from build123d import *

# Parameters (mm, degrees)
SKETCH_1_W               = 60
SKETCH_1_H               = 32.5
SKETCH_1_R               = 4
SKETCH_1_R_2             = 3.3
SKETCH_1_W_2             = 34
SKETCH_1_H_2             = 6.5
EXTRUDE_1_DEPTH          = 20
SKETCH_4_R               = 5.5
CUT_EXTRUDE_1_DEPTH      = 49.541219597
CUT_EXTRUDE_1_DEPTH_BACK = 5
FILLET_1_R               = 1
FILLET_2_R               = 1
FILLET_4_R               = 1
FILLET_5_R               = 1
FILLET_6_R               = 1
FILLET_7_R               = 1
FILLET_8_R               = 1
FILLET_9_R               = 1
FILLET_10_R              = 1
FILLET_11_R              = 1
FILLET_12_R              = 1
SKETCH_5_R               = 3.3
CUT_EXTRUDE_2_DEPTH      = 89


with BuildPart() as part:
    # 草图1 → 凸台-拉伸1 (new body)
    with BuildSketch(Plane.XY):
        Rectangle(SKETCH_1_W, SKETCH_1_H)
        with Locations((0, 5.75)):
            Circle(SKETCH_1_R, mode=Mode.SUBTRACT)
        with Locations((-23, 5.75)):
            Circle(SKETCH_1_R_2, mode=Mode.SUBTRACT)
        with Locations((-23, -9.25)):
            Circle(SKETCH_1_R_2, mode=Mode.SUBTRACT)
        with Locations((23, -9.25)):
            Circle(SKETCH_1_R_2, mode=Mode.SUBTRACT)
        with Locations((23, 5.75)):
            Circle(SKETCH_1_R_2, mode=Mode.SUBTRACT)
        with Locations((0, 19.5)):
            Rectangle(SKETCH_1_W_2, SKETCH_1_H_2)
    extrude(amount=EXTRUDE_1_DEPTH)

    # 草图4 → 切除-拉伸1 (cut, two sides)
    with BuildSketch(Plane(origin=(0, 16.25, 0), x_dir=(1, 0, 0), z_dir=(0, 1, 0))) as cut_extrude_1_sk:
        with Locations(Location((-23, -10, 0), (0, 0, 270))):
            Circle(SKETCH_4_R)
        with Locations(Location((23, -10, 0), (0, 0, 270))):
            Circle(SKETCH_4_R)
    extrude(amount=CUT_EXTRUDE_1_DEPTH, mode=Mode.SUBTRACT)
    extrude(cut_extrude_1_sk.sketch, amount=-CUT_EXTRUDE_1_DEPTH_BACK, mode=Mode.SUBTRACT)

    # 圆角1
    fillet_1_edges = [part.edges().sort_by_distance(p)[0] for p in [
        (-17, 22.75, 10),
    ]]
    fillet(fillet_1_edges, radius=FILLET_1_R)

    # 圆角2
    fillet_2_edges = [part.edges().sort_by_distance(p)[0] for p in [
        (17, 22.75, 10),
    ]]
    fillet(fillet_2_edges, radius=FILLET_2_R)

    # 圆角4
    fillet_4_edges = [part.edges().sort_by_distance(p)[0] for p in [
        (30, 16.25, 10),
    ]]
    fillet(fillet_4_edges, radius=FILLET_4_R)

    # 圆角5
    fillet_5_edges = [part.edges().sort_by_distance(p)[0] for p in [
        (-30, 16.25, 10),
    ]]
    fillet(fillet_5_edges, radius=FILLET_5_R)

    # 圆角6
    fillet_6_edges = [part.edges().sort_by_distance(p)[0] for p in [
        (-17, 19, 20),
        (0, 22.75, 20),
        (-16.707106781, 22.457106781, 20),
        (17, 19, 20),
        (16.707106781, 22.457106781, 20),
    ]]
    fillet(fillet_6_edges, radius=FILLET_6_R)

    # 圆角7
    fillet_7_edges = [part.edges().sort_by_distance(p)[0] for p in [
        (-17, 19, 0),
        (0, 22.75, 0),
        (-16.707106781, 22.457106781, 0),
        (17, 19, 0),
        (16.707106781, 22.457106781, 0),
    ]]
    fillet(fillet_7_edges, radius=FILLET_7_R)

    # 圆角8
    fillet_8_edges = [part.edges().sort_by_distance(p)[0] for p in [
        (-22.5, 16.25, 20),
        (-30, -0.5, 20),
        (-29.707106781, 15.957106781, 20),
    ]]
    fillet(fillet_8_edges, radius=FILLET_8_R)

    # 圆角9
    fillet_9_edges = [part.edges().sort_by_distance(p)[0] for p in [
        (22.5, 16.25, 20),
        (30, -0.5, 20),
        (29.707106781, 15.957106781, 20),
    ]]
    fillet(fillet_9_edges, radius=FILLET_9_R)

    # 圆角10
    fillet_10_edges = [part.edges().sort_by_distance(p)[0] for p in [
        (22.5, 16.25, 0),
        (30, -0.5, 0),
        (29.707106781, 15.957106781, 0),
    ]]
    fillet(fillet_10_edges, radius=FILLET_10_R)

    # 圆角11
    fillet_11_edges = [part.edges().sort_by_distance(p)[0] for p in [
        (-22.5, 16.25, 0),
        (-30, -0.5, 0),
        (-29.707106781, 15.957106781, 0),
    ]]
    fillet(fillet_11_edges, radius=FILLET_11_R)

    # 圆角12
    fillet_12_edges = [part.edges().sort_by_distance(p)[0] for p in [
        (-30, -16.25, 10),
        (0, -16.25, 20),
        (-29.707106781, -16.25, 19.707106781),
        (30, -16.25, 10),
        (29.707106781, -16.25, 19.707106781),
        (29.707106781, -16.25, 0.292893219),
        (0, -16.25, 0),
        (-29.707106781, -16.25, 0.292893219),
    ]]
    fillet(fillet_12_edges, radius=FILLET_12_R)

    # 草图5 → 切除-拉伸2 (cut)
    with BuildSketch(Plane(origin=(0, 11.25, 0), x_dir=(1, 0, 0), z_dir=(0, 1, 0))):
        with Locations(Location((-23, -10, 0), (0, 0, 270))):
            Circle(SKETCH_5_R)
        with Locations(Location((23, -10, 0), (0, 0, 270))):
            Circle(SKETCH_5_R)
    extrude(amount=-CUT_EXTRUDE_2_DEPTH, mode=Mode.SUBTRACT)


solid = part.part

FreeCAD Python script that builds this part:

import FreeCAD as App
import Part
import Sketcher

V = App.Vector


def edges_at(feature, points):
    """Names of the edges that pass closest to the given points."""
    edges = feature.Shape.Edges
    near = lambda p: min(range(len(edges)), key=lambda i: edges[i].distToShape(Part.Vertex(*p))[0])
    return sorted({f"Edge{near(p) + 1}" for p in points})

doc = App.newDocument("Part")
body = doc.addObject("PartDesign::Body", "Body")

# Sketch on XY plane
sketch1 = body.newObject("Sketcher::SketchObject", "Sketch")
sketch1.AttachmentSupport = (doc.getObject("XY_Plane"), [""])
sketch1.MapMode = "FlatFace"
sketch1.addGeometry(Part.LineSegment(V(-30, 16.2, 0), V(-30, -16.2, 0)), False)
sketch1.addGeometry(Part.LineSegment(V(-30, -16.2, 0), V(30, -16.2, 0)), False)
sketch1.addGeometry(Part.LineSegment(V(30, -16.2, 0), V(30, 16.2, 0)), False)
sketch1.addGeometry(Part.LineSegment(V(30, 16.2, 0), V(17, 16.2, 0)), False)
sketch1.addGeometry(Part.LineSegment(V(17, 16.2, 0), V(17, 22.8, 0)), False)
sketch1.addGeometry(Part.LineSegment(V(17, 22.8, 0), V(-17, 22.8, 0)), False)
sketch1.addGeometry(Part.LineSegment(V(-17, 22.8, 0), V(-17, 16.2, 0)), False)
sketch1.addGeometry(Part.LineSegment(V(-17, 16.2, 0), V(-30, 16.2, 0)), False)
sketch1.addGeometry(Part.Circle(V(-23, -9.2, 0), V(0, 0, 1), 3.3), False)
sketch1.addGeometry(Part.Circle(V(23, -9.2, 0), V(0, 0, 1), 3.3), False)
sketch1.addGeometry(Part.Circle(V(-23, 5.8, 0), V(0, 0, 1), 3.3), False)
sketch1.addGeometry(Part.Circle(V(0, 5.8, 0), V(0, 0, 1), 4), False)
sketch1.addGeometry(Part.Circle(V(23, 5.8, 0), V(0, 0, 1), 3.3), False)
sketch1.addConstraint(Sketcher.Constraint("Coincident", 0, 2, 1, 1))
sketch1.addConstraint(Sketcher.Constraint("Coincident", 1, 2, 2, 1))
sketch1.addConstraint(Sketcher.Constraint("Coincident", 2, 2, 3, 1))
sketch1.addConstraint(Sketcher.Constraint("Coincident", 3, 2, 4, 1))
sketch1.addConstraint(Sketcher.Constraint("Coincident", 4, 2, 5, 1))
sketch1.addConstraint(Sketcher.Constraint("Coincident", 5, 2, 6, 1))
sketch1.addConstraint(Sketcher.Constraint("Coincident", 6, 2, 7, 1))
sketch1.addConstraint(Sketcher.Constraint("Coincident", 7, 2, 0, 1))
sketch1.addConstraint(Sketcher.Constraint("Vertical", 0))
sketch1.addConstraint(Sketcher.Constraint("Horizontal", 1))
sketch1.addConstraint(Sketcher.Constraint("Vertical", 2))
sketch1.addConstraint(Sketcher.Constraint("Horizontal", 3))
sketch1.addConstraint(Sketcher.Constraint("Vertical", 4))
sketch1.addConstraint(Sketcher.Constraint("Horizontal", 5))
sketch1.addConstraint(Sketcher.Constraint("Vertical", 6))
sketch1.addConstraint(Sketcher.Constraint("Horizontal", 7))
sketch1.addConstraint(Sketcher.Constraint("Equal", 8, 9))
sketch1.addConstraint(Sketcher.Constraint("Equal", 9, 10))
sketch1.addConstraint(Sketcher.Constraint("Equal", 10, 12))
sketch1.addConstraint(Sketcher.Constraint("Symmetric", 0, 2, 2, 2, -1, 1))
sketch1.addConstraint(Sketcher.Constraint("Symmetric", 8, 3, 9, 3, -2))
sketch1.addConstraint(Sketcher.Constraint("Symmetric", 10, 3, 12, 3, -2))
sketch1.addConstraint(Sketcher.Constraint("Symmetric", 3, 2, 6, 2, -2))
sketch1.addConstraint(Sketcher.Constraint("PointOnObject", 11, 3, -2))
sketch1.addConstraint(Sketcher.Constraint("Horizontal", 10, 3, 11, 3))
sketch1.addConstraint(Sketcher.Constraint("Vertical", 8, 3, 10, 3))
sketch1.addConstraint(Sketcher.Constraint("Diameter", 11, 8.0))
sketch1.addConstraint(Sketcher.Constraint("Diameter", 8, 6.6))
sketch1.addConstraint(Sketcher.Constraint("DistanceX", 1, 1, 1, 2, 60.0))
sketch1.addConstraint(Sketcher.Constraint("DistanceX", 3, 2, 3, 1, 13.0))
sketch1.addConstraint(Sketcher.Constraint("DistanceY", 0, 2, 0, 1, 32.5))
sketch1.addConstraint(Sketcher.Constraint("DistanceY", 4, 1, 4, 2, 6.5))
sketch1.addConstraint(Sketcher.Constraint("DistanceX", 8, 3, -1, 1, 23.0))
sketch1.addConstraint(Sketcher.Constraint("DistanceY", 8, 3, 10, 3, 15.0))
sketch1.addConstraint(Sketcher.Constraint("DistanceY", 0, 2, 8, 3, 7.0))
pad1 = body.newObject("PartDesign::Pad", "Pad")
pad1.Profile = sketch1
pad1.Length = 20

# Sketch on XZ plane
sketch2 = body.newObject("Sketcher::SketchObject", "Sketch001")
sketch2.AttachmentSupport = (doc.getObject("XZ_Plane"), [""])
sketch2.MapMode = "FlatFace"
sketch2.AttachmentOffset = App.Placement(V(0, 0, -16.25), App.Rotation())
sketch2.addGeometry(Part.Circle(V(-23, 10, 0), V(0, 0, 1), 6), False)
sketch2.addGeometry(Part.Circle(V(23, 10, 0), V(0, 0, 1), 6), False)
sketch2.addConstraint(Sketcher.Constraint("Equal", 0, 1))
sketch2.addConstraint(Sketcher.Constraint("Symmetric", 0, 3, 1, 3, -2))
sketch2.addConstraint(Sketcher.Constraint("Diameter", 0, 11.0))
sketch2.addConstraint(Sketcher.Constraint("DistanceX", 0, 3, -1, 1, 23.0))
sketch2.addConstraint(Sketcher.Constraint("DistanceY", -1, 1, 0, 3, 10.0))
pocket1 = body.newObject("PartDesign::Pocket", "Pocket")
pocket1.Profile = sketch2
pocket1.Type = "TwoLengths"
pocket1.Length = 49.54122
pocket1.Length2 = 5
doc.recompute()

fillet = body.newObject("PartDesign::Fillet", "Fillet")
fillet.Base = (pocket1, edges_at(pocket1, [(-17, 22.75, 10)]))
fillet.Radius = 1
doc.recompute()

fillet2 = body.newObject("PartDesign::Fillet", "Fillet001")
fillet2.Base = (fillet, edges_at(fillet, [(17, 22.75, 10)]))
fillet2.Radius = 1
doc.recompute()

fillet3 = body.newObject("PartDesign::Fillet", "Fillet002")
fillet3.Base = (fillet2, edges_at(fillet2, [(30, 16.25, 10)]))
fillet3.Radius = 1
doc.recompute()

fillet4 = body.newObject("PartDesign::Fillet", "Fillet003")
fillet4.Base = (fillet3, edges_at(fillet3, [(-30, 16.25, 10)]))
fillet4.Radius = 1
doc.recompute()

fillet5 = body.newObject("PartDesign::Fillet", "Fillet004")
fillet5.Base = (fillet4, edges_at(fillet4, [
    (-17, 19, 20),
    (0, 22.75, 20),
    (-16.707, 22.457, 20),
    (17, 19, 20),
    (16.707, 22.457, 20),
]))
fillet5.Radius = 1
doc.recompute()

fillet6 = body.newObject("PartDesign::Fillet", "Fillet005")
fillet6.Base = (fillet5, edges_at(fillet5, [
    (-17, 19, 0),
    (0, 22.75, 0),
    (-16.707, 22.457, 0),
    (17, 19, 0),
    (16.707, 22.457, 0),
]))
fillet6.Radius = 1
doc.recompute()

fillet7 = body.newObject("PartDesign::Fillet", "Fillet006")
fillet7.Base = (fillet6, edges_at(fillet6, [(-22.5, 16.25, 20), (-30, -0.5, 20), (-29.707, 15.957, 20)]))
fillet7.Radius = 1
doc.recompute()

fillet8 = body.newObject("PartDesign::Fillet", "Fillet007")
fillet8.Base = (fillet7, edges_at(fillet7, [(22.5, 16.25, 20), (30, -0.5, 20), (29.707, 15.957, 20)]))
fillet8.Radius = 1
doc.recompute()

fillet9 = body.newObject("PartDesign::Fillet", "Fillet008")
fillet9.Base = (fillet8, edges_at(fillet8, [(22.5, 16.25, 0), (30, -0.5, 0), (29.707, 15.957, 0)]))
fillet9.Radius = 1
doc.recompute()

fillet10 = body.newObject("PartDesign::Fillet", "Fillet009")
fillet10.Base = (fillet9, edges_at(fillet9, [(-22.5, 16.25, 0), (-30, -0.5, 0), (-29.707, 15.957, 0)]))
fillet10.Radius = 1
doc.recompute()

fillet11 = body.newObject("PartDesign::Fillet", "Fillet010")
fillet11.Base = (fillet10, edges_at(fillet10, [
    (-30, -16.25, 10),
    (0, -16.25, 20),
    (-29.707, -16.25, 19.707),
    (30, -16.25, 10),
    (29.707, -16.25, 19.707),
    (29.707, -16.25, 0.293),
    (0, -16.25, 0),
    (-29.707, -16.25, 0.293),
]))
fillet11.Radius = 1

# Sketch on XZ plane
sketch3 = body.newObject("Sketcher::SketchObject", "Sketch002")
sketch3.AttachmentSupport = (doc.getObject("XZ_Plane"), [""])
sketch3.MapMode = "FlatFace"
sketch3.AttachmentOffset = App.Placement(V(0, 0, -11.25), App.Rotation())
sketch3.addGeometry(Part.Circle(V(-23, 10, 0), V(0, 0, 1), 3.3), False)
sketch3.addGeometry(Part.Circle(V(23, 10, 0), V(0, 0, 1), 3.3), False)
sketch3.addConstraint(Sketcher.Constraint("Equal", 0, 1))
sketch3.addConstraint(Sketcher.Constraint("Symmetric", 0, 3, 1, 3, -2))
sketch3.addConstraint(Sketcher.Constraint("Diameter", 0, 6.6))
sketch3.addConstraint(Sketcher.Constraint("DistanceX", 0, 3, -1, 1, 23.0))
sketch3.addConstraint(Sketcher.Constraint("DistanceY", -1, 1, 0, 3, 10.0))
pocket2 = body.newObject("PartDesign::Pocket", "Pocket001")
pocket2.Profile = sketch3
pocket2.Length = 89
pocket2.Reversed = True

doc.recompute()
